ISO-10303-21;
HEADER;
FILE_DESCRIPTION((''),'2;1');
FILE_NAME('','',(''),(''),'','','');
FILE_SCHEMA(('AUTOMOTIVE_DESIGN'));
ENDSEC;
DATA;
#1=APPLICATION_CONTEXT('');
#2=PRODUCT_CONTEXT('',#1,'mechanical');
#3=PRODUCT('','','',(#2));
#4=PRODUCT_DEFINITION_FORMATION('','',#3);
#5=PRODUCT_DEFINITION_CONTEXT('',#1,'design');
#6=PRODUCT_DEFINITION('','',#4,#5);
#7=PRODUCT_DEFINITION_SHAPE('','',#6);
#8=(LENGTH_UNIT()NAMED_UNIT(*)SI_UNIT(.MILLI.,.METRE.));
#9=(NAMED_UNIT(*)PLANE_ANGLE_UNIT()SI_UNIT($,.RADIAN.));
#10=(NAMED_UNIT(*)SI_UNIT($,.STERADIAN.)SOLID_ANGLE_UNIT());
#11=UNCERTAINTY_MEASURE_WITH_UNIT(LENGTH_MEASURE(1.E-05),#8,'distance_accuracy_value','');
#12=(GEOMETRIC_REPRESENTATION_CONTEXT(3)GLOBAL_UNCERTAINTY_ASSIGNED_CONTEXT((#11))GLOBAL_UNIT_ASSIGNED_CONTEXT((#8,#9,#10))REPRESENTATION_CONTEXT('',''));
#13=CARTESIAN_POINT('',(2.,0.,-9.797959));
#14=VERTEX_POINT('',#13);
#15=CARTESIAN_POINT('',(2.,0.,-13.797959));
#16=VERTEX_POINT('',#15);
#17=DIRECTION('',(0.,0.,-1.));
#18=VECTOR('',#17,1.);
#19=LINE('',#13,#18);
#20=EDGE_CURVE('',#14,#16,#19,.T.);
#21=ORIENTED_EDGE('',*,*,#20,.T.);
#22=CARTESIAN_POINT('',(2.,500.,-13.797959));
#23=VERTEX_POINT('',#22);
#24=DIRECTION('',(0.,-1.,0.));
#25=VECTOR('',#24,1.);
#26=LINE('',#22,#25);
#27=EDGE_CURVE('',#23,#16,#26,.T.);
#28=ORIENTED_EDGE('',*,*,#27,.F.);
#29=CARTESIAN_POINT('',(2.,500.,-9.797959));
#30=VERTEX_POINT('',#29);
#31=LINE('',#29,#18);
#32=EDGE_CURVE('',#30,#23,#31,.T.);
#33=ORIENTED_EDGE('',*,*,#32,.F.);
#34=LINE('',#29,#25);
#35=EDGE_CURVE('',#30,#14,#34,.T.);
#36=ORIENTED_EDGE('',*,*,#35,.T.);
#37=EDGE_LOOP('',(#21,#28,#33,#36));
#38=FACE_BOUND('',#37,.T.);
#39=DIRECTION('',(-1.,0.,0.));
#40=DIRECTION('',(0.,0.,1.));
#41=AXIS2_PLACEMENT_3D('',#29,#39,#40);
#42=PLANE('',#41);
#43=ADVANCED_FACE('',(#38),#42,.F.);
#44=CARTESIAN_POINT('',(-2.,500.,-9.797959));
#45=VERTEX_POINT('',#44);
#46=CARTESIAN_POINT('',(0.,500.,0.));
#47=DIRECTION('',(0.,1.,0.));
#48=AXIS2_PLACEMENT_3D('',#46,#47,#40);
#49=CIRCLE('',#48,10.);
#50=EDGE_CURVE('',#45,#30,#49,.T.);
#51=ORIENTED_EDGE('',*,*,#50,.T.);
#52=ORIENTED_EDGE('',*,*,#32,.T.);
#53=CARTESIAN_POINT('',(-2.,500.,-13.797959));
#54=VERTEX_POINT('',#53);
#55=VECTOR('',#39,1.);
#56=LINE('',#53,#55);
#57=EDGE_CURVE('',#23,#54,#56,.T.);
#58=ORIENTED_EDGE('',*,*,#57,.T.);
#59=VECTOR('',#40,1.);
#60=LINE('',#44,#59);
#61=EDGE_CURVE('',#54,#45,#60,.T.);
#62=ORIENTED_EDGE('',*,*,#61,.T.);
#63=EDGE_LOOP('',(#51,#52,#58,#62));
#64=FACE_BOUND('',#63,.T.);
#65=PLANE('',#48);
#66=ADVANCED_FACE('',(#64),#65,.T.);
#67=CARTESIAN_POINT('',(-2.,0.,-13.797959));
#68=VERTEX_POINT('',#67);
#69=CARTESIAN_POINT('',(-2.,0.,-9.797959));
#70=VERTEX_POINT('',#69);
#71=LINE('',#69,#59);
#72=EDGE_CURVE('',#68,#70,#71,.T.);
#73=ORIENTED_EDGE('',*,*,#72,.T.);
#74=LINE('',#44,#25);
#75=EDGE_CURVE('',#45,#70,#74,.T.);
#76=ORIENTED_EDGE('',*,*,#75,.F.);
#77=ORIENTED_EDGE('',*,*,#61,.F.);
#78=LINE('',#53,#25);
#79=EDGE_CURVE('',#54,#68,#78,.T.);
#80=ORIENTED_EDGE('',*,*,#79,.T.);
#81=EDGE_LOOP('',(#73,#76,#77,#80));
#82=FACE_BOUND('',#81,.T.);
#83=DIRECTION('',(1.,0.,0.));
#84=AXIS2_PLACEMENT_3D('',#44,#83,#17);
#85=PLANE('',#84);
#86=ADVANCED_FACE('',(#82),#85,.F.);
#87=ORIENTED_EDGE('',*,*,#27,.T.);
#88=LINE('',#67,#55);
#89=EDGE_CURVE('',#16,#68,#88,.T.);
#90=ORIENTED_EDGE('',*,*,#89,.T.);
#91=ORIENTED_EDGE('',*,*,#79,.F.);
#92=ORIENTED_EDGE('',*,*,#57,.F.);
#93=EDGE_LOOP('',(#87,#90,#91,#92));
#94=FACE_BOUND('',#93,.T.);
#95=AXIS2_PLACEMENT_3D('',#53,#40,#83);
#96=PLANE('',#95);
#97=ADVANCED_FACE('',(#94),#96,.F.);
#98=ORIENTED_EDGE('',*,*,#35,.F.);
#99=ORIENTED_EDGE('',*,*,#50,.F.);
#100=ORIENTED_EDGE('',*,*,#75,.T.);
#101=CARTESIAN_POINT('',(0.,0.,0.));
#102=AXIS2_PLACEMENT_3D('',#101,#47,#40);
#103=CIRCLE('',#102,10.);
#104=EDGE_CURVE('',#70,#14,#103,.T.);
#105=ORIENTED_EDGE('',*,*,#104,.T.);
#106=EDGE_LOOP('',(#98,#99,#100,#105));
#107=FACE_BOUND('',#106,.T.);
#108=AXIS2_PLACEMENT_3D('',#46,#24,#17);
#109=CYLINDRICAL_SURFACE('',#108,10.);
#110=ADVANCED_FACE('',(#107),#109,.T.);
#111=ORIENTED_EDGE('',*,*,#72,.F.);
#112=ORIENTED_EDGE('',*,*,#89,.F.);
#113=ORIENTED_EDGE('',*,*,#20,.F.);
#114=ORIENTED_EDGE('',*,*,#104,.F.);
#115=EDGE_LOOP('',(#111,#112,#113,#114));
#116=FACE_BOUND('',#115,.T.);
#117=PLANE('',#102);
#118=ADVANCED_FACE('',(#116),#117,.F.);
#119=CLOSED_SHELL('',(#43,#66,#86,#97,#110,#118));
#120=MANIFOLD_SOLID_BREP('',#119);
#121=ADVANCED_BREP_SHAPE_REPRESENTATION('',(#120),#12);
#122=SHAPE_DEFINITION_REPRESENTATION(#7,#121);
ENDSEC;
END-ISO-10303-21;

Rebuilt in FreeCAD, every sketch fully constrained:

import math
import FreeCAD as App
import Part
import Sketcher
Q = App.Units.Quantity

doc = App.newDocument("Part")
body = doc.addObject("PartDesign::Body", "Body")

# Sketch on XZ plane
sketch1 = doc.addObject("Sketcher::SketchObject", "Sketch")
body.addObject(sketch1)
sketch1.AttachmentSupport = (doc.XZ_Plane, [""])
sketch1.MapMode = "FlatFace"
sketch1.addGeometry(Part.LineSegment(App.Vector(-2, -13.797959, 0), App.Vector(-2, -9.797959, 0)), False)
sketch1.addGeometry(Part.ArcOfCircle(Part.Circle(App.Vector(0, 0, 0), App.Vector(0, 0, 1), 10), math.radians(-78.463041), math.radians(258.463041)), False)
sketch1.addGeometry(Part.LineSegment(App.Vector(2, -9.797959, 0), App.Vector(2, -13.797959, 0)), False)
sketch1.addGeometry(Part.LineSegment(App.Vector(2, -13.797959, 0), App.Vector(-2, -13.797959, 0)), False)
sketch1.addConstraint(Sketcher.Constraint("Coincident", 0, 2, 1, 2))
sketch1.addConstraint(Sketcher.Constraint("Coincident", 1, 1, 2, 1))
sketch1.addConstraint(Sketcher.Constraint("Coincident", 2, 2, 3, 1))
sketch1.addConstraint(Sketcher.Constraint("Coincident", 3, 2, 0, 1))
sketch1.addConstraint(Sketcher.Constraint("Vertical", 0))
sketch1.addConstraint(Sketcher.Constraint("Vertical", 2))
sketch1.addConstraint(Sketcher.Constraint("Horizontal", 3))
sketch1.addConstraint(Sketcher.Constraint("Coincident", 1, 3, -1, 1))
sketch1.addConstraint(Sketcher.Constraint("Horizontal", 0, 2, 1, 1))
sketch1.addConstraint(Sketcher.Constraint("Equal", 3, 0))
sketch1.addConstraint(Sketcher.Constraint("Radius", 1, Q("10 mm")))
sketch1.addConstraint(Sketcher.Constraint("DistanceX", 3, 2, 3, 1, Q("4 mm")))
pad1 = doc.addObject("PartDesign::Pad", "Pad")
body.addObject(pad1)
pad1.Profile = sketch1
pad1.Length = 500
pad1.Reversed = True

doc.recompute()
